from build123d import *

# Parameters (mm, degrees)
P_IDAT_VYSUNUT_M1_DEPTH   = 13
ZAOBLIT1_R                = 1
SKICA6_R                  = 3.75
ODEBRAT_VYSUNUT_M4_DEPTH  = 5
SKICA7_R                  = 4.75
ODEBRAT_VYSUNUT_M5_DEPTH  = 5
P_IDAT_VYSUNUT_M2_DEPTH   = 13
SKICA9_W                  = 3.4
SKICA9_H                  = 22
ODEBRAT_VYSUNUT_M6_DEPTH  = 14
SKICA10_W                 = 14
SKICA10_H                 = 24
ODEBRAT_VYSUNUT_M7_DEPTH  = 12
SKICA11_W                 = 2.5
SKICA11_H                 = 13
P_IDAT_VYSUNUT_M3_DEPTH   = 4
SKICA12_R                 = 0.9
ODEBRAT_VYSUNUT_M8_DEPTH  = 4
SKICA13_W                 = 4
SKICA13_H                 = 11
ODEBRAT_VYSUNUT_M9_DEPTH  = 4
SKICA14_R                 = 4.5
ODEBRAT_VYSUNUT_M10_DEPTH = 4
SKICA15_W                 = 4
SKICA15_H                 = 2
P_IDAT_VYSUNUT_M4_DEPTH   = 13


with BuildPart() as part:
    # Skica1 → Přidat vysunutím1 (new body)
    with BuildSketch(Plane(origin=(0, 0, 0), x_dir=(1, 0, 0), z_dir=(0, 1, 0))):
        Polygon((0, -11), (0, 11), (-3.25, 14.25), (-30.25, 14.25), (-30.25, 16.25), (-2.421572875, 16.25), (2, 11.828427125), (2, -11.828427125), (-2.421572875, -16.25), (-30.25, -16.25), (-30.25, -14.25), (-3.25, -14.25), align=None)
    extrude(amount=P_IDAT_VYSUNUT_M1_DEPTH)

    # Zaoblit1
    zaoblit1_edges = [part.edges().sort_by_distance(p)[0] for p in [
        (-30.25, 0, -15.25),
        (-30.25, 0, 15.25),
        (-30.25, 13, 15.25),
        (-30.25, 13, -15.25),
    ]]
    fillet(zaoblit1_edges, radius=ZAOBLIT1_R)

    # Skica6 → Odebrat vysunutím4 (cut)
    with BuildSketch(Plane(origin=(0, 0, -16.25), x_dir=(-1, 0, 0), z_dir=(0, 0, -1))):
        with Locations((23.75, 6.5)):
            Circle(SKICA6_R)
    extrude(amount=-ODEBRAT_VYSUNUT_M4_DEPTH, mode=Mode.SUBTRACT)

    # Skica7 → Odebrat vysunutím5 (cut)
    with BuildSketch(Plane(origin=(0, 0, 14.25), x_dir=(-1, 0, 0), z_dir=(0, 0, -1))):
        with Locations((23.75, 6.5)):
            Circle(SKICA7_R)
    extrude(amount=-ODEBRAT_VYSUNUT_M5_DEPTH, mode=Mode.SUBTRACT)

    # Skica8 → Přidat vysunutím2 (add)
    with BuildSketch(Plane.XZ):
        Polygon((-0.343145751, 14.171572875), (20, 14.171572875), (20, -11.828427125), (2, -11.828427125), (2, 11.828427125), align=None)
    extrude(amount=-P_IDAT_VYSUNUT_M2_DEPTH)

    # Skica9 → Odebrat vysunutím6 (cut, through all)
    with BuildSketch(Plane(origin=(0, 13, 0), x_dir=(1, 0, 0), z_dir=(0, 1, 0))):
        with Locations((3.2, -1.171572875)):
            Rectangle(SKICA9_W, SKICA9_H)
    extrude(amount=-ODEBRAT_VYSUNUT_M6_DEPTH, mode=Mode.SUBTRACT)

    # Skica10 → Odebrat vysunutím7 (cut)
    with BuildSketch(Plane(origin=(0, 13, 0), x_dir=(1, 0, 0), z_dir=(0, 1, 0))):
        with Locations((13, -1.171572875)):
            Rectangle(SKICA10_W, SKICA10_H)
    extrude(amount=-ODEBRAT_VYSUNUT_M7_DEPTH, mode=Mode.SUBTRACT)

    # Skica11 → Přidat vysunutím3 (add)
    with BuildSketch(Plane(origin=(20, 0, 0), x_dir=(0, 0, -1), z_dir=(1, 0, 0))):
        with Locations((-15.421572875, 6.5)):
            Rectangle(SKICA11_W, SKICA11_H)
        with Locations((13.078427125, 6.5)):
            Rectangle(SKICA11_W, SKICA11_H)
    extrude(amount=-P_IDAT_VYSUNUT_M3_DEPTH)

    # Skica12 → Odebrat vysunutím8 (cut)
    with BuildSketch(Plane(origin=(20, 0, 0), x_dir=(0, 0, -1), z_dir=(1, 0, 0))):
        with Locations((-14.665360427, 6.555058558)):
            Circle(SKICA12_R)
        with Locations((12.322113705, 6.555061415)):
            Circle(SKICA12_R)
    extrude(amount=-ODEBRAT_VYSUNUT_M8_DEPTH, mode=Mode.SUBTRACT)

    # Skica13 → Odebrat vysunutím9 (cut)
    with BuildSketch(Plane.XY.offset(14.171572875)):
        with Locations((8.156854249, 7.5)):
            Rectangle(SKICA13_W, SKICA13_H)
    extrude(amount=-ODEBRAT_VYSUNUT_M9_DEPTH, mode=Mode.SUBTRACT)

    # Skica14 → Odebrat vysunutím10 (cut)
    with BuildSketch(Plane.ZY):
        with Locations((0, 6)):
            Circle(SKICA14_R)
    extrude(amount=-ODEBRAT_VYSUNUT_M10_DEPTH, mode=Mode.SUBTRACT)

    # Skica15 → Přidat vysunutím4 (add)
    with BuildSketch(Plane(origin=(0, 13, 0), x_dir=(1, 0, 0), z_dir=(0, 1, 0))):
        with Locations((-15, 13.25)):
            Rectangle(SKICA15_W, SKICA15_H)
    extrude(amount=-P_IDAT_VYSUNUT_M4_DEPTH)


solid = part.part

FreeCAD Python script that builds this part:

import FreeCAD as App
import Part
import Sketcher
Q = App.Units.Quantity


def edges_at(feature, points):
    """Names of the edges that pass closest to the given points."""
    edges = feature.Shape.Edges
    near = lambda p: min(range(len(edges)), key=lambda i: edges[i].distToShape(Part.Vertex(*p))[0])
    return sorted({f"Edge{near(p) + 1}" for p in points})


def add_polygon(sketch, points):
    """Adds a closed chain of lines whose ends are joined by coincident constraints."""
    first, n = sketch.GeometryCount, len(points)
    for a, b in zip(points, points[1:] + points[:1]):
        sketch.addGeometry(Part.LineSegment(App.Vector(*a, 0), App.Vector(*b, 0)), False)
    for i in range(n):
        sketch.addConstraint(Sketcher.Constraint("Coincident", first + i, 2, first + (i + 1) % n, 1))

doc = App.newDocument("Part")
params = doc.addObject("Spreadsheet::Sheet", "Params")
for row, (alias, value) in enumerate([
    ("sketch1_width", "27 mm"),
    ("sketch1_height", "22 mm"),
    ("sketch1_height2", "2 mm"),
    ("pad1_length", "13 mm"),
    ("fillet_radius", "1 mm"),
    ("sketch2_diameter", "7.5 mm"),
    ("pocket1_length", "5 mm"),
    ("sketch3_diameter", "9.5 mm"),
    ("pocket2_length", "5 mm"),
    ("sketch4_width", "18 mm"),
    ("sketch4_height", "26 mm"),
    ("pad2_length", "13 mm"),
    ("sketch5_height", "22 mm"),
    ("sketch5_width", "3.4 mm"),
    ("sketch6_width", "14 mm"),
    ("sketch6_height", "24 mm"),
    ("pocket4_length", "12 mm"),
    ("sketch7_width", "13 mm"),
    ("sketch7_height", "2.5 mm"),
    ("pad3_length", "4 mm"),
    ("sketch8_diameter", "1.8 mm"),
    ("pocket5_length", "4 mm"),
    ("sketch9_width", "4 mm"),
    ("sketch9_height", "11 mm"),
    ("pocket6_length", "4 mm"),
    ("sketch10_diameter", "9 mm"),
    ("pocket7_length", "4 mm"),
    ("sketch11_width", "4 mm"),
    ("sketch11_height", "2 mm"),
    ("pad4_length", "13 mm"),
], start=1):
    params.set(f"A{row}", alias)
    params.set(f"B{row}", "=" + value)
    params.setAlias(f"B{row}", alias)

body = doc.addObject("PartDesign::Body", "Body")

# Sketch on XZ plane
sketch1 = body.newObject("Sketcher::SketchObject", "Sketch")
sketch1.AttachmentSupport = (doc.getObject("XZ_Plane"), [""])
sketch1.MapMode = "FlatFace"
add_polygon(sketch1, [(0, -11), (0, 11), (-3.25, 14.25), (-30.25, 14.25), (-30.25, 16.25), (-2.421573, 16.25), (2, 11.828427), (2, -11.828427), (-2.421573, -16.25), (-30.25, -16.25), (-30.25, -14.25), (-3.25, -14.25)])  # lines 0-11
sketch1.addConstraint(Sketcher.Constraint("Vertical", 0))
sketch1.addConstraint(Sketcher.Constraint("Horizontal", 2))
sketch1.addConstraint(Sketcher.Constraint("Vertical", 3))
sketch1.addConstraint(Sketcher.Constraint("Horizontal", 4))
sketch1.addConstraint(Sketcher.Constraint("Vertical", 6))
sketch1.addConstraint(Sketcher.Constraint("Horizontal", 8))
sketch1.addConstraint(Sketcher.Constraint("Vertical", 9))
sketch1.addConstraint(Sketcher.Constraint("Horizontal", 10))
sketch1.addConstraint(Sketcher.Constraint("Symmetric", 0, 2, 11, 2, -1, 1))
sketch1.addConstraint(Sketcher.Constraint("Symmetric", 4, 2, 7, 2, -1))
sketch1.addConstraint(Sketcher.Constraint("Symmetric", 2, 2, 9, 2, -1))
sketch1.addConstraint(Sketcher.Constraint("Parallel", 1, 5))
sketch1.addConstraint(Sketcher.Constraint("Perpendicular", 5, 7))
sketch1.addConstraint(Sketcher.Constraint("Parallel", 7, 11))
sketch1.addConstraint(Sketcher.Constraint("Vertical", 1, 2, 10, 2))
sketch1.addConstraint(Sketcher.Constraint("DistanceX", 2, 2, 2, 1, Q("27 mm")))
sketch1.addConstraint(Sketcher.Constraint("DistanceY", 0, 1, 0, 2, Q("22 mm")))
sketch1.addConstraint(Sketcher.Constraint("DistanceY", 3, 1, 3, 2, Q("2 mm")))
sketch1.addConstraint(Sketcher.Constraint("DistanceX", -1, 1, 5, 2, Q("2 mm")))
sketch1.addConstraint(Sketcher.Constraint("DistanceY", 7, 2, 1, 2, Q("30.5 mm")))
sketch1.addConstraint(Sketcher.Constraint("Distance", 5, Q("6.253048 mm")))
sketch1.setExpression("Constraints[27]", "Params.sketch1_width")
sketch1.setExpression("Constraints[28]", "Params.sketch1_height")
sketch1.setExpression("Constraints[29]", "Params.sketch1_height2")
pad1 = body.newObject("PartDesign::Pad", "Pad")
pad1.Profile = sketch1
pad1.setExpression("Length", "Params.pad1_length")
pad1.Reversed = True
doc.recompute()

fillet = body.newObject("PartDesign::Fillet", "Fillet")
fillet.Base = (pad1, edges_at(pad1, [
    (-30.25, 0, -15.25),
    (-30.25, 0, 15.25),
    (-30.25, 13, 15.25),
    (-30.25, 13, -15.25),
]))
fillet.setExpression("Radius", "Params.fillet_radius")

# Sketch on XY plane
sketch2 = body.newObject("Sketcher::SketchObject", "Sketch001")
sketch2.AttachmentSupport = (doc.getObject("XY_Plane"), [""])
sketch2.MapMode = "FlatFace"
sketch2.AttachmentOffset = App.Placement(App.Vector(0, 0, -16.25), App.Rotation())
sketch2.addGeometry(Part.Circle(App.Vector(-23.75, 6.5, 0), App.Vector(0, 0, 1), 3.75), False)
sketch2.addConstraint(Sketcher.Constraint("Diameter", 0, Q("7.5 mm")))
sketch2.addConstraint(Sketcher.Constraint("DistanceY", -1, 1, 0, 3, Q("6.5 mm")))
sketch2.addConstraint(Sketcher.Constraint("DistanceX", 0, 3, -1, 1, Q("23.75 mm")))
sketch2.setExpression("Constraints[0]", "Params.sketch2_diameter")
pocket1 = body.newObject("PartDesign::Pocket", "Pocket")
pocket1.Profile = sketch2
pocket1.setExpression("Length", "Params.pocket1_length")
pocket1.Reversed = True

# Sketch on XY plane
sketch3 = body.newObject("Sketcher::SketchObject", "Sketch002")
sketch3.AttachmentSupport = (doc.getObject("XY_Plane"), [""])
sketch3.MapMode = "FlatFace"
sketch3.AttachmentOffset = App.Placement(App.Vector(0, 0, 14.25), App.Rotation())
sketch3.addGeometry(Part.Circle(App.Vector(-23.75, 6.5, 0), App.Vector(0, 0, 1), 4.75), False)
sketch3.addConstraint(Sketcher.Constraint("Diameter", 0, Q("9.5 mm")))
sketch3.addConstraint(Sketcher.Constraint("DistanceY", -1, 1, 0, 3, Q("6.5 mm")))
sketch3.addConstraint(Sketcher.Constraint("DistanceX", 0, 3, -1, 1, Q("23.75 mm")))
sketch3.setExpression("Constraints[0]", "Params.sketch3_diameter")
pocket2 = body.newObject("PartDesign::Pocket", "Pocket001")
pocket2.Profile = sketch3
pocket2.setExpression("Length", "Params.pocket2_length")
pocket2.Reversed = True

# Sketch on XZ plane
sketch4 = body.newObject("Sketcher::SketchObject", "Sketch003")
sketch4.AttachmentSupport = (doc.getObject("XZ_Plane"), [""])
sketch4.MapMode = "FlatFace"
add_polygon(sketch4, [(20, 14.171573), (-0.343146, 14.171573), (2, 11.828427), (2, -11.828427), (20, -11.828427)])  # lines 0-4
sketch4.addConstraint(Sketcher.Constraint("Horizontal", 0))
sketch4.addConstraint(Sketcher.Constraint("Vertical", 2))
sketch4.addConstraint(Sketcher.Constraint("Horizontal", 3))
sketch4.addConstraint(Sketcher.Constraint("Vertical", 4))
sketch4.addConstraint(Sketcher.Constraint("DistanceX", 3, 1, 3, 2, Q("18 mm")))
sketch4.addConstraint(Sketcher.Constraint("DistanceY", 4, 1, 4, 2, Q("26 mm")))
sketch4.addConstraint(Sketcher.Constraint("Angle", 1, Q("-45 deg")))
sketch4.addConstraint(Sketcher.Constraint("DistanceX", -1, 1, 1, 2, Q("2 mm")))
sketch4.addConstraint(Sketcher.Constraint("Distance", 1, Q("3.313708 mm")))
sketch4.addConstraint(Sketcher.Constraint("DistanceY", -1, 1, 0, 2, Q("14.171573 mm")))
sketch4.setExpression("Constraints[9]", "Params.sketch4_width")
sketch4.setExpression("Constraints[10]", "Params.sketch4_height")
pad2 = body.newObject("PartDesign::Pad", "Pad001")
pad2.Profile = sketch4
pad2.setExpression("Length", "Params.pad2_length")
pad2.Reversed = True

# Sketch on XZ plane
sketch5 = body.newObject("Sketcher::SketchObject", "Sketch004")
sketch5.AttachmentSupport = (doc.getObject("XZ_Plane"), [""])
sketch5.MapMode = "FlatFace"
sketch5.AttachmentOffset = App.Placement(App.Vector(0, 0, -13), App.Rotation())
add_polygon(sketch5, [(1.5, -9.828427), (1.5, 12.171573), (4.9, 12.171573), (4.9, -9.828427)])  # lines 0-3
sketch5.addConstraint(Sketcher.Constraint("Vertical", 0))
sketch5.addConstraint(Sketcher.Constraint("Horizontal", 1))
sketch5.addConstraint(Sketcher.Constraint("Vertical", 2))
sketch5.addConstraint(Sketcher.Constraint("Horizontal", 3))
sketch5.addConstraint(Sketcher.Constraint("DistanceY", 0, 1, 0, 2, Q("22 mm")))
sketch5.addConstraint(Sketcher.Constraint("DistanceX", 1, 1, 1, 2, Q("3.4 mm")))
sketch5.addConstraint(Sketcher.Constraint("DistanceX", -1, 1, 0, 2, Q("1.5 mm")))
sketch5.addConstraint(Sketcher.Constraint("DistanceY", -1, 1, 0, 2, Q("12.171573 mm")))
sketch5.setExpression("Constraints[8]", "Params.sketch5_height")
sketch5.setExpression("Constraints[9]", "Params.sketch5_width")
pocket3 = body.newObject("PartDesign::Pocket", "Pocket002")
pocket3.Profile = sketch5
pocket3.Type = "ThroughAll"
pocket3.Reversed = True

# Sketch on XZ plane
sketch6 = body.newObject("Sketcher::SketchObject", "Sketch005")
sketch6.AttachmentSupport = (doc.getObject("XZ_Plane"), [""])
sketch6.MapMode = "FlatFace"
sketch6.AttachmentOffset = App.Placement(App.Vector(0, 0, -13), App.Rotation())
add_polygon(sketch6, [(6, -10.828427), (6, 13.171573), (20, 13.171573), (20, -10.828427)])  # lines 0-3
sketch6.addConstraint(Sketcher.Constraint("Vertical", 0))
sketch6.addConstraint(Sketcher.Constraint("Horizontal", 1))
sketch6.addConstraint(Sketcher.Constraint("Vertical", 2))
sketch6.addConstraint(Sketcher.Constraint("Horizontal", 3))
sketch6.addConstraint(Sketcher.Constraint("DistanceX", 1, 1, 1, 2, Q("14 mm")))
sketch6.addConstraint(Sketcher.Constraint("DistanceY", 0, 1, 0, 2, Q("24 mm")))
sketch6.addConstraint(Sketcher.Constraint("DistanceX", -1, 1, 0, 2, Q("6 mm")))
sketch6.addConstraint(Sketcher.Constraint("DistanceY", -1, 1, 0, 2, Q("13.171573 mm")))
sketch6.setExpression("Constraints[8]", "Params.sketch6_width")
sketch6.setExpression("Constraints[9]", "Params.sketch6_height")
pocket4 = body.newObject("PartDesign::Pocket", "Pocket003")
pocket4.Profile = sketch6
pocket4.setExpression("Length", "Params.pocket4_length")
pocket4.Reversed = True

# Sketch on YZ plane
sketch7 = body.newObject("Sketcher::SketchObject", "Sketch006")
sketch7.AttachmentSupport = (doc.getObject("YZ_Plane"), [""])
sketch7.MapMode = "FlatFace"
sketch7.AttachmentOffset = App.Placement(App.Vector(0, 0, 20), App.Rotation())
add_polygon(sketch7, [(13, 16.671573), (0, 16.671573), (0, 14.171573), (13, 14.171573)])  # lines 0-3
add_polygon(sketch7, [(13, -11.828427), (0, -11.828427), (0, -14.328427), (13, -14.328427)])  # lines 4-7
sketch7.addConstraint(Sketcher.Constraint("Horizontal", 0))
sketch7.addConstraint(Sketcher.Constraint("Vertical", 1))
sketch7.addConstraint(Sketcher.Constraint("Horizontal", 2))
sketch7.addConstraint(Sketcher.Constraint("Vertical", 3))
sketch7.addConstraint(Sketcher.Constraint("Horizontal", 4))
sketch7.addConstraint(Sketcher.Constraint("Vertical", 5))
sketch7.addConstraint(Sketcher.Constraint("Horizontal", 6))
sketch7.addConstraint(Sketcher.Constraint("Vertical", 7))
sketch7.addConstraint(Sketcher.Constraint("PointOnObject", 0, 2, -2))
sketch7.addConstraint(Sketcher.Constraint("PointOnObject", 4, 2, -2))
sketch7.addConstraint(Sketcher.Constraint("Vertical", 3, 2, 6, 2))
sketch7.addConstraint(Sketcher.Constraint("Equal", 3, 5))
sketch7.addConstraint(Sketcher.Constraint("DistanceX", 0, 2, 0, 1, Q("13 mm")))
sketch7.addConstraint(Sketcher.Constraint("DistanceY", 1, 2, 1, 1, Q("2.5 mm")))
sketch7.addConstraint(Sketcher.Constraint("DistanceY", 4, 2, 1, 2, Q("26 mm")))
sketch7.addConstraint(Sketcher.Constraint("DistanceY", -1, 1, 0, 2, Q("16.671573 mm")))
sketch7.setExpression("Constraints[20]", "Params.sketch7_width")
sketch7.setExpression("Constraints[21]", "Params.sketch7_height")
pad3 = body.newObject("PartDesign::Pad", "Pad002")
pad3.Profile = sketch7
pad3.setExpression("Length", "Params.pad3_length")
pad3.Reversed = True

# Sketch on YZ plane
sketch8 = body.newObject("Sketcher::SketchObject", "Sketch007")
sketch8.AttachmentSupport = (doc.getObject("YZ_Plane"), [""])
sketch8.MapMode = "FlatFace"
sketch8.AttachmentOffset = App.Placement(App.Vector(0, 0, 20), App.Rotation())
sketch8.addGeometry(Part.Circle(App.Vector(6.555059, 14.66536, 0), App.Vector(0, 0, 1), 0.9), False)
sketch8.addGeometry(Part.Circle(App.Vector(6.555061, -12.322114, 0), App.Vector(0, 0, 1), 0.9), False)
sketch8.addConstraint(Sketcher.Constraint("Equal", 0, 1))
sketch8.addConstraint(Sketcher.Constraint("Diameter", 0, Q("1.8 mm")))
sketch8.addConstraint(Sketcher.Constraint("DistanceX", -1, 1, 0, 3, Q("6.555059 mm")))
sketch8.addConstraint(Sketcher.Constraint("DistanceY", -1, 1, 0, 3, Q("14.66536 mm")))
sketch8.addConstraint(Sketcher.Constraint("DistanceX", -1, 1, 1, 3, Q("6.555061 mm")))
sketch8.addConstraint(Sketcher.Constraint("DistanceY", 1, 3, -1, 1, Q("12.322114 mm")))
sketch8.setExpression("Constraints[1]", "Params.sketch8_diameter")
pocket5 = body.newObject("PartDesign::Pocket", "Pocket004")
pocket5.Profile = sketch8
pocket5.setExpression("Length", "Params.pocket5_length")

# Sketch on XY plane
sketch9 = body.newObject("Sketcher::SketchObject", "Sketch008")
sketch9.AttachmentSupport = (doc.getObject("XY_Plane"), [""])
sketch9.MapMode = "FlatFace"
sketch9.AttachmentOffset = App.Placement(App.Vector(0, 0, 14.171573), App.Rotation())
add_polygon(sketch9, [(6.156854, 13), (6.156854, 2), (10.156854, 2), (10.156854, 13)])  # lines 0-3
sketch9.addConstraint(Sketcher.Constraint("Vertical", 0))
sketch9.addConstraint(Sketcher.Constraint("Horizontal", 1))
sketch9.addConstraint(Sketcher.Constraint("Vertical", 2))
sketch9.addConstraint(Sketcher.Constraint("Horizontal", 3))
sketch9.addConstraint(Sketcher.Constraint("DistanceX", 1, 1, 1, 2, Q("4 mm")))
sketch9.addConstraint(Sketcher.Constraint("DistanceY", 0, 2, 0, 1, Q("11 mm")))
sketch9.addConstraint(Sketcher.Constraint("DistanceY", -1, 1, 0, 2, Q("2 mm")))
sketch9.addConstraint(Sketcher.Constraint("DistanceX", -1, 1, 0, 2, Q("6.156854 mm")))
sketch9.setExpression("Constraints[8]", "Params.sketch9_width")
sketch9.setExpression("Constraints[9]", "Params.sketch9_height")
pocket6 = body.newObject("PartDesign::Pocket", "Pocket005")
pocket6.Profile = sketch9
pocket6.setExpression("Length", "Params.pocket6_length")

# Sketch on YZ plane
sketch10 = body.newObject("Sketcher::SketchObject", "Sketch009")
sketch10.AttachmentSupport = (doc.getObject("YZ_Plane"), [""])
sketch10.MapMode = "FlatFace"
sketch10.addGeometry(Part.Circle(App.Vector(6, 0, 0), App.Vector(0, 0, 1), 4.5), False)
sketch10.addConstraint(Sketcher.Constraint("PointOnObject", 0, 3, -1))
sketch10.addConstraint(Sketcher.Constraint("Diameter", 0, Q("9 mm")))
sketch10.addConstraint(Sketcher.Constraint("DistanceX", -1, 1, 0, 3, Q("6 mm")))
sketch10.setExpression("Constraints[1]", "Params.sketch10_diameter")
pocket7 = body.newObject("PartDesign::Pocket", "Pocket006")
pocket7.Profile = sketch10
pocket7.setExpression("Length", "Params.pocket7_length")
pocket7.Reversed = True

# Sketch on XZ plane
sketch11 = body.newObject("Sketcher::SketchObject", "Sketch010")
sketch11.AttachmentSupport = (doc.getObject("XZ_Plane"), [""])
sketch11.MapMode = "FlatFace"
sketch11.AttachmentOffset = App.Placement(App.Vector(0, 0, -13), App.Rotation())
add_polygon(sketch11, [(-17, -14.25), (-17, -12.25), (-13, -12.25), (-13, -14.25)])  # lines 0-3
sketch11.addConstraint(Sketcher.Constraint("Vertical", 0))
sketch11.addConstraint(Sketcher.Constraint("Horizontal", 1))
sketch11.addConstraint(Sketcher.Constraint("Vertical", 2))
sketch11.addConstraint(Sketcher.Constraint("Horizontal", 3))
sketch11.addConstraint(Sketcher.Constraint("DistanceX", 1, 1, 1, 2, Q("4 mm")))
sketch11.addConstraint(Sketcher.Constraint("DistanceY", 0, 1, 0, 2, Q("2 mm")))
sketch11.addConstraint(Sketcher.Constraint("DistanceX", 0, 2, -1, 1, Q("17 mm")))
sketch11.addConstraint(Sketcher.Constraint("DistanceY", 0, 2, -1, 1, Q("12.25 mm")))
sketch11.setExpression("Constraints[8]", "Params.sketch11_width")
sketch11.setExpression("Constraints[9]", "Params.sketch11_height")
pad4 = body.newObject("PartDesign::Pad", "Pad003")
pad4.Profile = sketch11
pad4.setExpression("Length", "Params.pad4_length")

doc.recompute()
